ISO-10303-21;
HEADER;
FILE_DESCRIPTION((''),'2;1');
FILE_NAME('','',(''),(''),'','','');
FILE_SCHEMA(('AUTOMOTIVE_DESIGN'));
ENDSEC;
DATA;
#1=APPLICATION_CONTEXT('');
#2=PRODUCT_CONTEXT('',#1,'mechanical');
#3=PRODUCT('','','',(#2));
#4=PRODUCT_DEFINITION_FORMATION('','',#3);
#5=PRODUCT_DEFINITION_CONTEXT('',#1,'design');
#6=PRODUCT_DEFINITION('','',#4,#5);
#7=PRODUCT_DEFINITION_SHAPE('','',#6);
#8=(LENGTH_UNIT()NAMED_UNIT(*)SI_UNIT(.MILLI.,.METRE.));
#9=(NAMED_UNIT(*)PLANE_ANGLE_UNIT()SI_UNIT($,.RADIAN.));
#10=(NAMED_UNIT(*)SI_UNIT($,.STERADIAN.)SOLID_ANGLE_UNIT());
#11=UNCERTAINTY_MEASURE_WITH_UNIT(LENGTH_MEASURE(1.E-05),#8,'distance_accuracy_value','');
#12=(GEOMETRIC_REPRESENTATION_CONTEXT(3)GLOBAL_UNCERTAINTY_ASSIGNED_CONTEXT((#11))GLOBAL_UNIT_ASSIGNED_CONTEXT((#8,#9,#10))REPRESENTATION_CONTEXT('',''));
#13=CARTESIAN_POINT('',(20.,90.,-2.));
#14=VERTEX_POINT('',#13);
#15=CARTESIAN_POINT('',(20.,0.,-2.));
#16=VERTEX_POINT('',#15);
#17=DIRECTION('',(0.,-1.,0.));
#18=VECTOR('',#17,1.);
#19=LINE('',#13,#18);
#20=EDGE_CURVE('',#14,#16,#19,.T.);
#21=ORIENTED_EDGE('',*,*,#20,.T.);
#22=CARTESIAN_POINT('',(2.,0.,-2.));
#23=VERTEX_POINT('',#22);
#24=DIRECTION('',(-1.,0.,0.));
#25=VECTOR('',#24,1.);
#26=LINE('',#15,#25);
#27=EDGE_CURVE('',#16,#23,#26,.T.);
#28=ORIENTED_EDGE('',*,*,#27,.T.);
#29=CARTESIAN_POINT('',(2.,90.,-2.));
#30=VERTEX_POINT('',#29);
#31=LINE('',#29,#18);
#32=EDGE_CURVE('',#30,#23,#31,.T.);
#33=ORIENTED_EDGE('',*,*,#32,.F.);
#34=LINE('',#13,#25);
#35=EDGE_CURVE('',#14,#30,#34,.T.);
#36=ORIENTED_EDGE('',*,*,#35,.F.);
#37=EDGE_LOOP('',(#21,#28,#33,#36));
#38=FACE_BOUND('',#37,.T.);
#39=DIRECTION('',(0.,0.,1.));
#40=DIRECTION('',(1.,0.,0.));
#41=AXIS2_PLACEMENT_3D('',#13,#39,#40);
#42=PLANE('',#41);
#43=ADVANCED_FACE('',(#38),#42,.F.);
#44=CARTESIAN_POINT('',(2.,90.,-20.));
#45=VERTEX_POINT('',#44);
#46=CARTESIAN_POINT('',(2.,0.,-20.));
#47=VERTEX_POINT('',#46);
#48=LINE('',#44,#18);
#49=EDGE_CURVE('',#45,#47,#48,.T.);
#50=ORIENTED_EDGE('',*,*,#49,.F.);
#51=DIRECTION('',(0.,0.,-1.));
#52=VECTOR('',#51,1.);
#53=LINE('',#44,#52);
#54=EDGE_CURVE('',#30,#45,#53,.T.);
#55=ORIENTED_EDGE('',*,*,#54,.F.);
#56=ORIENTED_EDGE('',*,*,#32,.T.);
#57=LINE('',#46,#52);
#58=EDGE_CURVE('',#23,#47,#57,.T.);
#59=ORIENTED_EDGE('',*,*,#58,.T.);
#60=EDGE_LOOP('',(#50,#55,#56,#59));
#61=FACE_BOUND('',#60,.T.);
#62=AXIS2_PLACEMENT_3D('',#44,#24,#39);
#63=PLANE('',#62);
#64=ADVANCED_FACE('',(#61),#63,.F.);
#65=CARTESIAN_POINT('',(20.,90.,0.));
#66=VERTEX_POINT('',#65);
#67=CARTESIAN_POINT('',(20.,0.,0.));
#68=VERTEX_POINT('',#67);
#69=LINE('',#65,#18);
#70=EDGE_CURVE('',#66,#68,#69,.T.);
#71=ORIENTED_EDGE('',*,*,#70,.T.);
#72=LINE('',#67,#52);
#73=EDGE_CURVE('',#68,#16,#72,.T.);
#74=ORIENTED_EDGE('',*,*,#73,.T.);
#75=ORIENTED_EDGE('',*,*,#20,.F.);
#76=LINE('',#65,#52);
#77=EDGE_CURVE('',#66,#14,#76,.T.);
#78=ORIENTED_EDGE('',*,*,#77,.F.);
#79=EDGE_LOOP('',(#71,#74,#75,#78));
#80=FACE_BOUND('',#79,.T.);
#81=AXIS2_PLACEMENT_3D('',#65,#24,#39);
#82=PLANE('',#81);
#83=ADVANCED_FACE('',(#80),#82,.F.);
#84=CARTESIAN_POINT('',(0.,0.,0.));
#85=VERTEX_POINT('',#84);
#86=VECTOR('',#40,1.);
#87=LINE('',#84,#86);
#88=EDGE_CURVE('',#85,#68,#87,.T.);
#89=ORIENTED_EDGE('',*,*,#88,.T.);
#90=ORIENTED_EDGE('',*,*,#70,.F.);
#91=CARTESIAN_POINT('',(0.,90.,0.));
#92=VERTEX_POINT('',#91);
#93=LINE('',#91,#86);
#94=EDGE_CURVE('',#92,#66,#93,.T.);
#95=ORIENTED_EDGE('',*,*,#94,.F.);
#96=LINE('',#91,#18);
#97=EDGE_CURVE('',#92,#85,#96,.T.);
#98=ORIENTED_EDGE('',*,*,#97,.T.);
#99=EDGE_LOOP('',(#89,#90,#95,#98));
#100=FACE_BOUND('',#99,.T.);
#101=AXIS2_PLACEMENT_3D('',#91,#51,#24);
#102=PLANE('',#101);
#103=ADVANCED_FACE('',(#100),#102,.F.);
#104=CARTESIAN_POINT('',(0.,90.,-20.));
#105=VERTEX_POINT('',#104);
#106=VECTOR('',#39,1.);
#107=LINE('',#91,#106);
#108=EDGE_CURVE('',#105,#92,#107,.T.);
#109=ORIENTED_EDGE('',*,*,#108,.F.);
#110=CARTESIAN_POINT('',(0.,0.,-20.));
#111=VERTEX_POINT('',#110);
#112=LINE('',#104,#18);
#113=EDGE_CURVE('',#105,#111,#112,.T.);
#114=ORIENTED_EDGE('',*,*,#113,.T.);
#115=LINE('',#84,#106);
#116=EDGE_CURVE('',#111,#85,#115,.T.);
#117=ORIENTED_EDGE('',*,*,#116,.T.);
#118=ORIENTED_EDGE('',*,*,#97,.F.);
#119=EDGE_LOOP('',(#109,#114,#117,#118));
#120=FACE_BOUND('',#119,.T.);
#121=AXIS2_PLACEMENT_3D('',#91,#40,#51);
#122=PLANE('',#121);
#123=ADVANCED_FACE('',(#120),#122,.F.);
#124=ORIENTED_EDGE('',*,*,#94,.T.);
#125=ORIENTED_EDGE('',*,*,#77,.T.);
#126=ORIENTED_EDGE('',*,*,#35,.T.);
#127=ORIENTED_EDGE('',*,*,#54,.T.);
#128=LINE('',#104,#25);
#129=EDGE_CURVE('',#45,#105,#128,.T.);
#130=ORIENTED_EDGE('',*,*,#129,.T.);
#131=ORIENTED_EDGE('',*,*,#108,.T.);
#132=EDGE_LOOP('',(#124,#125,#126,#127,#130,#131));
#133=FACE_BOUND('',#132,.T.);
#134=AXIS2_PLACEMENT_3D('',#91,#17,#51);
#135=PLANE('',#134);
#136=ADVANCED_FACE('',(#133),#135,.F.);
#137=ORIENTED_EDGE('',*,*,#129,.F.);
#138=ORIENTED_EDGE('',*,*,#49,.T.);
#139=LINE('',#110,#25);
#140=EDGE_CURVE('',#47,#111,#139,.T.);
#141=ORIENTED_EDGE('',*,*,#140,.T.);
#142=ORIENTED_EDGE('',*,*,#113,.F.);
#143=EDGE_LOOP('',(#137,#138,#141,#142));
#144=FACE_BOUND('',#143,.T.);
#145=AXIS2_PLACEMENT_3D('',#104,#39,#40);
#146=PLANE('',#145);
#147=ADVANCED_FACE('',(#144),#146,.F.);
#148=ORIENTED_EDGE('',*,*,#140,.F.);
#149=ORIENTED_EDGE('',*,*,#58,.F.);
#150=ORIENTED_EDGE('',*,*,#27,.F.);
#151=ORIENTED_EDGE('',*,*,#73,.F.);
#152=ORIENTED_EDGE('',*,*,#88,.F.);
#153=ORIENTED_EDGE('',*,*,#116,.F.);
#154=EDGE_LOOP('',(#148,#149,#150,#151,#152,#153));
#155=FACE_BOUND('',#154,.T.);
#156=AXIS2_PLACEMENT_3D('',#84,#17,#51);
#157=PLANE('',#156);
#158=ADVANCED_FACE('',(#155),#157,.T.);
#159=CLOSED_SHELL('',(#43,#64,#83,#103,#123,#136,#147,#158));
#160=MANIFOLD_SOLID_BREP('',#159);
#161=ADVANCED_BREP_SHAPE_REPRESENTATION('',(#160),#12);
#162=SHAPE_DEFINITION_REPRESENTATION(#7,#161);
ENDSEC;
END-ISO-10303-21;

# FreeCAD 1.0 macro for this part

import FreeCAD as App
import Part
import Sketcher
Q = App.Units.Quantity

doc = App.newDocument("Part")
body = doc.addObject("PartDesign::Body", "Body")

# Sketch on XZ plane
sketch1 = body.newObject("Sketcher::SketchObject", "Sketch")
sketch1.AttachmentSupport = (doc.getObject("XZ_Plane"), [""])
sketch1.MapMode = "FlatFace"
sketch1.addGeometry([
    Part.LineSegment(App.Vector(0, 0, 0), App.Vector(20, 0, 0)),  # 0
    Part.LineSegment(App.Vector(20, 0, 0), App.Vector(20, -2, 0)),  # 1
    Part.LineSegment(App.Vector(20, -2, 0), App.Vector(2, -2, 0)),  # 2
    Part.LineSegment(App.Vector(2, -2, 0), App.Vector(2, -20, 0)),  # 3
    Part.LineSegment(App.Vector(2, -20, 0), App.Vector(0, -20, 0)),  # 4
    Part.LineSegment(App.Vector(0, -20, 0), App.Vector(0, 0, 0)),  # 5
], False)
sketch1.addConstraint([
    Sketcher.Constraint("Coincident", 0, 2, 1, 1),
    Sketcher.Constraint("Coincident", 1, 2, 2, 1),
    Sketcher.Constraint("Coincident", 2, 2, 3, 1),
    Sketcher.Constraint("Coincident", 3, 2, 4, 1),
    Sketcher.Constraint("Coincident", 4, 2, 5, 1),
    Sketcher.Constraint("Coincident", 5, 2, 0, 1),
    Sketcher.Constraint("Horizontal", 0),
    Sketcher.Constraint("Vertical", 1),
    Sketcher.Constraint("Horizontal", 2),
    Sketcher.Constraint("Vertical", 3),
    Sketcher.Constraint("Horizontal", 4),
    Sketcher.Constraint("Vertical", 5),
    Sketcher.Constraint("Coincident", 5, 2, -1, 1),
    Sketcher.Constraint("Equal", 4, 1),
    Sketcher.Constraint("Equal", 2, 3),
    Sketcher.Constraint("DistanceX", 0, 1, 0, 2, Q("20 mm")),
    Sketcher.Constraint("DistanceX", 2, 2, 2, 1, Q("18 mm")),
])
pad1 = body.newObject("PartDesign::Pad", "Pad")
pad1.Profile = sketch1
pad1.Length = 90
pad1.Reversed = True

doc.recompute()
